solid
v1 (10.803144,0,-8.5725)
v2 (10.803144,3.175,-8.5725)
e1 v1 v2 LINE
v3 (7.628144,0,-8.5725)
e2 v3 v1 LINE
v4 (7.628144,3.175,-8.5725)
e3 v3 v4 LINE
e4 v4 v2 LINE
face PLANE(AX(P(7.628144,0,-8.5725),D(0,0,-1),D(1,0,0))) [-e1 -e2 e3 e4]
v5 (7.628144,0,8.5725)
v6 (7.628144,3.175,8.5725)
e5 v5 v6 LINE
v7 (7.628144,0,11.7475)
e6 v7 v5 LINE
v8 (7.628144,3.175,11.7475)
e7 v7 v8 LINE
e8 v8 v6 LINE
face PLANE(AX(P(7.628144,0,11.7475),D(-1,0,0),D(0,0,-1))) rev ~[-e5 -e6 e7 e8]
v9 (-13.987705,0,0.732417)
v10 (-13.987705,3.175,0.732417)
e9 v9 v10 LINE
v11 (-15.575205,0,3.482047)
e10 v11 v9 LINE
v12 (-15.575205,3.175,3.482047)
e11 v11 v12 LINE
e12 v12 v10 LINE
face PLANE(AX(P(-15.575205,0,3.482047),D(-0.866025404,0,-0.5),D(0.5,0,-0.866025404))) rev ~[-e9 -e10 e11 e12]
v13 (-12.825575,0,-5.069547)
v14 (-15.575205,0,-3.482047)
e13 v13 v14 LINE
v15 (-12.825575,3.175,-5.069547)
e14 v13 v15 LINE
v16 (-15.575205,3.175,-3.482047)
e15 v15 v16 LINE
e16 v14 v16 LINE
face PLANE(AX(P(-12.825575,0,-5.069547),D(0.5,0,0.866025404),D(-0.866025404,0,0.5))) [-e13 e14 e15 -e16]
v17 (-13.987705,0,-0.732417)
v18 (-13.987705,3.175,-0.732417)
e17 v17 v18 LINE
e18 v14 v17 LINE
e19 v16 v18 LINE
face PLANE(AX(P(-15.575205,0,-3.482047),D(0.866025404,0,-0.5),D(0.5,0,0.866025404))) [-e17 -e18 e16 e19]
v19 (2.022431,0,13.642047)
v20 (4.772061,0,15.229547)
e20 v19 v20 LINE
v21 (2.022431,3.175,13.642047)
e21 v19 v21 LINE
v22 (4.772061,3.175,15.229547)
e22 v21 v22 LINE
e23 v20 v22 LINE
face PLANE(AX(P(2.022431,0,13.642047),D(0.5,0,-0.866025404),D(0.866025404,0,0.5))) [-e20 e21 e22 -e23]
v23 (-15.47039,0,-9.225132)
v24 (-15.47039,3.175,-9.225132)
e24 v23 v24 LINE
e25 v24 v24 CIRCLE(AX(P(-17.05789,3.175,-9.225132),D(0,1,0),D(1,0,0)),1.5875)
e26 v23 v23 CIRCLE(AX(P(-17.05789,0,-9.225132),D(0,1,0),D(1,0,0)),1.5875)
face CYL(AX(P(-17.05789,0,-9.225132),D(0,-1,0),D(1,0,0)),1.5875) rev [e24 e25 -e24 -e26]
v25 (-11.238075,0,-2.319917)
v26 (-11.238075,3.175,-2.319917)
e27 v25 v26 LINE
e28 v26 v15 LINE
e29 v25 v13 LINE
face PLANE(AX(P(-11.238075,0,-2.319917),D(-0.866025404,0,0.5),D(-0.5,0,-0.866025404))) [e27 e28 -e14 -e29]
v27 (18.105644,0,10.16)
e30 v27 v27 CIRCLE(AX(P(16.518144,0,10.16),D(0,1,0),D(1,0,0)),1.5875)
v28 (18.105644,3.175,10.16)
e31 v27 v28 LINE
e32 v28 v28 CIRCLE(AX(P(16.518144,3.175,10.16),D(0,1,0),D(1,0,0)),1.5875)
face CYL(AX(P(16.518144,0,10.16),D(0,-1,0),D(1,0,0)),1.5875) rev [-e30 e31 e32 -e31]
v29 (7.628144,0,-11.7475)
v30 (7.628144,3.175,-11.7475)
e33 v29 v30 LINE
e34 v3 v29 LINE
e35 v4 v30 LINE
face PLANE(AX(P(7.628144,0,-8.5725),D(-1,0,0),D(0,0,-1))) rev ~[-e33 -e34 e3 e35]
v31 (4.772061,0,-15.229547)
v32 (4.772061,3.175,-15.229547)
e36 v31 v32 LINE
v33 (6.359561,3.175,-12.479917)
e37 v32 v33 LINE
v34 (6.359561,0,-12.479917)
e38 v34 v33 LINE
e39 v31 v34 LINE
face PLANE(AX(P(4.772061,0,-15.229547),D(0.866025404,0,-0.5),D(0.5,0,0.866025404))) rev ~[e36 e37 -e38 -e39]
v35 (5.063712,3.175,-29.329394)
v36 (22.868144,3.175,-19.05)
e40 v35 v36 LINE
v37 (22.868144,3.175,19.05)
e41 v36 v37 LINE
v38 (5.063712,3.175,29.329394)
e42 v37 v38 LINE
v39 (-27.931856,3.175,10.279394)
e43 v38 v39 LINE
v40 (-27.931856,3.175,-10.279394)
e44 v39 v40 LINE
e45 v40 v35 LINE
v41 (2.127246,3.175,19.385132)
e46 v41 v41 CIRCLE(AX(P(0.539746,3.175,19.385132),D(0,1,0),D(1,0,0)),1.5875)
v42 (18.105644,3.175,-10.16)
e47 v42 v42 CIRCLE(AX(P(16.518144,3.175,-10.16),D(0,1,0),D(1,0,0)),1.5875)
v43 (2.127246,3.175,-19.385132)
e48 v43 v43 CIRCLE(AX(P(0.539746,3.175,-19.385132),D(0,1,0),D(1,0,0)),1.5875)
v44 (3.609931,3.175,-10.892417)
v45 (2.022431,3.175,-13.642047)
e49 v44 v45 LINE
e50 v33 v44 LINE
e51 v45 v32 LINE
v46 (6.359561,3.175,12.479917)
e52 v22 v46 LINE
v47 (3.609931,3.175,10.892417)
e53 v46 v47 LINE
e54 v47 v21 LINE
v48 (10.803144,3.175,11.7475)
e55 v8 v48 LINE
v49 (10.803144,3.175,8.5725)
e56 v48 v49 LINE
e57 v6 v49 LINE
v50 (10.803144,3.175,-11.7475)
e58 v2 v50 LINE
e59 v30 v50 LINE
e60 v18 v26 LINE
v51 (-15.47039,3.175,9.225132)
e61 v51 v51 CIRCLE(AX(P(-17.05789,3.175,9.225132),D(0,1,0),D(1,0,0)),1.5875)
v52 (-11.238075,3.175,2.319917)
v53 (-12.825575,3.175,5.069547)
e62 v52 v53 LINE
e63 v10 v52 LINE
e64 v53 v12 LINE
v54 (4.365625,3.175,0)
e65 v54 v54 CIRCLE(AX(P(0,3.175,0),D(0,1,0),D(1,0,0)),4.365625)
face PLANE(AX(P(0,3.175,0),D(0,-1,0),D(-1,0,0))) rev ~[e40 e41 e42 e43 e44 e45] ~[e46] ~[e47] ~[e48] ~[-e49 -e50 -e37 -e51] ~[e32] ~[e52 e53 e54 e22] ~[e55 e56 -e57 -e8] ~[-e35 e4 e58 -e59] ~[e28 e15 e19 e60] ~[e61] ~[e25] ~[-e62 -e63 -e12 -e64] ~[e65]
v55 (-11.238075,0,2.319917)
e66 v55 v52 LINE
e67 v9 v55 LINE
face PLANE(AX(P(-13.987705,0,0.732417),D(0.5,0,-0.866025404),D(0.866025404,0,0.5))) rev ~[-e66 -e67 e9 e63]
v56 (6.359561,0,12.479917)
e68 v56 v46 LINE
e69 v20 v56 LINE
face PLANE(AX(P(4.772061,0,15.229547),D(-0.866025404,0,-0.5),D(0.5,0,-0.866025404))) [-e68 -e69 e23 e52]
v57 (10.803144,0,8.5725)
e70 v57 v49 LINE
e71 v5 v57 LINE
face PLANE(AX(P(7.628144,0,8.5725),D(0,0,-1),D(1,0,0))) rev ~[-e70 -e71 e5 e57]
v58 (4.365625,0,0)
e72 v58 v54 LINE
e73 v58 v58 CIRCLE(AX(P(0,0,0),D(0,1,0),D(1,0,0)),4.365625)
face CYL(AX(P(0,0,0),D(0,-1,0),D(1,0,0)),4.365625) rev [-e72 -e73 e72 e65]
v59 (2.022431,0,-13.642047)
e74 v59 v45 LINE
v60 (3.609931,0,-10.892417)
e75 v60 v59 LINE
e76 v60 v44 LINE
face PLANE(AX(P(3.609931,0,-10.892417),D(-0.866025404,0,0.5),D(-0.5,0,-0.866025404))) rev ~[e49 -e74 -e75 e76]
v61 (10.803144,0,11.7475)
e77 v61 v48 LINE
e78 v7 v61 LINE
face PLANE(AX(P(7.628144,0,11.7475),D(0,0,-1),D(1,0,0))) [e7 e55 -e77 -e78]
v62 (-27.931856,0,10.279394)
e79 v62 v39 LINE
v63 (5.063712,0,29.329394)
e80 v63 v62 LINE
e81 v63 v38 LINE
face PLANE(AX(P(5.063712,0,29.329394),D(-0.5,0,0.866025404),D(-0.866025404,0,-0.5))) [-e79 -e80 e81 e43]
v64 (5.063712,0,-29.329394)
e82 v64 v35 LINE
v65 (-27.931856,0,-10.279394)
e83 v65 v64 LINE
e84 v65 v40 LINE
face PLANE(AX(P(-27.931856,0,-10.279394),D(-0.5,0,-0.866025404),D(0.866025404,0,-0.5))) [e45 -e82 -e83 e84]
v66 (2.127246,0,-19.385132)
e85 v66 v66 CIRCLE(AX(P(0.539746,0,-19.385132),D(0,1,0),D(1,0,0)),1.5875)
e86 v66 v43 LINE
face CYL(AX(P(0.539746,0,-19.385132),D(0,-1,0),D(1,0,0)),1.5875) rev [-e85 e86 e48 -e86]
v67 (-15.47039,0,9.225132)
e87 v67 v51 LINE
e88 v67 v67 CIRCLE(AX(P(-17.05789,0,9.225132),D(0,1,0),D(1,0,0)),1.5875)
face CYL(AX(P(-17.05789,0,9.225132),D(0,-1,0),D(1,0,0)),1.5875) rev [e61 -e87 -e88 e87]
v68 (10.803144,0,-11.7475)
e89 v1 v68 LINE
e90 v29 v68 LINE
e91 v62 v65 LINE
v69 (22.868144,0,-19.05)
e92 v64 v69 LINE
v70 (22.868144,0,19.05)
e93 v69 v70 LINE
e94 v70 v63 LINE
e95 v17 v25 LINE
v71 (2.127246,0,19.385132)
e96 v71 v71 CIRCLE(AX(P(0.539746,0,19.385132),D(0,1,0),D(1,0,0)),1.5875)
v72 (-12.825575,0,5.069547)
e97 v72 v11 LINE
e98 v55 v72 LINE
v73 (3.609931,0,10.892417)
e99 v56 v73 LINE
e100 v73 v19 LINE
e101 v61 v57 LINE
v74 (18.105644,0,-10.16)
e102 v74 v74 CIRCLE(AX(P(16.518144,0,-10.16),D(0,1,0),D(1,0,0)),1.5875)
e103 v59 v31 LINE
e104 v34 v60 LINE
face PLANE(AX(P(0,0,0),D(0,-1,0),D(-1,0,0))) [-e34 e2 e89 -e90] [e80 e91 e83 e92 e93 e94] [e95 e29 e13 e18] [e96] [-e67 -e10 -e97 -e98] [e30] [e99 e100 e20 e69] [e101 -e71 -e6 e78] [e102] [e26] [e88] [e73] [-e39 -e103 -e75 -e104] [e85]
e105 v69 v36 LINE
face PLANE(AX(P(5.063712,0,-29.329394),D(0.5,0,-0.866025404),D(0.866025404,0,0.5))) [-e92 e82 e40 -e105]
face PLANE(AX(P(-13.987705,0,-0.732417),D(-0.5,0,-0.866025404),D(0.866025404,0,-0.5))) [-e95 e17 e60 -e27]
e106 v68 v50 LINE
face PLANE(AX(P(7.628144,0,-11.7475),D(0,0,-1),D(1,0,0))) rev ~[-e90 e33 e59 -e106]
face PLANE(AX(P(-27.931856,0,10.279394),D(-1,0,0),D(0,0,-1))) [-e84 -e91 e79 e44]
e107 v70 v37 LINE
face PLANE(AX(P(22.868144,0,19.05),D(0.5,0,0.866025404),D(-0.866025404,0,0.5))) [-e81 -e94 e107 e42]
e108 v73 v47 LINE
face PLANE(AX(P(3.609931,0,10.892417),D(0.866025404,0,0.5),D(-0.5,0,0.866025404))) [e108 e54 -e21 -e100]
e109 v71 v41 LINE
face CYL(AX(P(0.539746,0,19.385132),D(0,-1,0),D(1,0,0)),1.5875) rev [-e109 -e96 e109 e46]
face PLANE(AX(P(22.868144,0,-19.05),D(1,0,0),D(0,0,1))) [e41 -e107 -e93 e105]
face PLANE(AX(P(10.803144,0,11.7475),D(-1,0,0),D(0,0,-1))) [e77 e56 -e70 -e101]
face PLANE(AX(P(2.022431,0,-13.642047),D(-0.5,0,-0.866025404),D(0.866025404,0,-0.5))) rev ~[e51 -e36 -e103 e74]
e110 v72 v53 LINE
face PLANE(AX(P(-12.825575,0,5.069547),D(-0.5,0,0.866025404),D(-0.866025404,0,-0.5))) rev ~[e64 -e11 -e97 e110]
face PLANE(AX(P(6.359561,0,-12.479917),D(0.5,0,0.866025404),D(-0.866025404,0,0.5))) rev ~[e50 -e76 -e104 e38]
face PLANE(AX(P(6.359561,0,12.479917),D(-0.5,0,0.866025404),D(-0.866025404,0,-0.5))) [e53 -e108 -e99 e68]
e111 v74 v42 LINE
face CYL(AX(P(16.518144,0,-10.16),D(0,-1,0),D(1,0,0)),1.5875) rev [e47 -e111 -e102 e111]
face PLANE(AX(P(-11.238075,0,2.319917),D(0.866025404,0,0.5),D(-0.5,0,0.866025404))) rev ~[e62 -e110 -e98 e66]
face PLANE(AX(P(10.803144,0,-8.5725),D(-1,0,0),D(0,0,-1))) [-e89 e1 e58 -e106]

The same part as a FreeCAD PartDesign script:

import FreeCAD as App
import Part
import Sketcher

V = App.Vector
Q = App.Units.Quantity


def add_polygon(sketch, points):
    """Adds a closed chain of lines whose ends are joined by coincident constraints."""
    first, n = sketch.GeometryCount, len(points)
    for a, b in zip(points, points[1:] + points[:1]):
        sketch.addGeometry(Part.LineSegment(App.Vector(*a, 0), App.Vector(*b, 0)), False)
    for i in range(n):
        sketch.addConstraint(Sketcher.Constraint("Coincident", first + i, 2, first + (i + 1) % n, 1))

doc = App.newDocument("Part")
body = doc.addObject("PartDesign::Body", "Body")

# Sketch on XZ plane
sketch1 = body.newObject("Sketcher::SketchObject", "Sketch")
sketch1.AttachmentSupport = (doc.getObject("XZ_Plane"), [""])
sketch1.MapMode = "FlatFace"
add_polygon(sketch1, [(22.868144, 19.05), (22.868144, -19.05), (5.063712, -29.329394), (-27.931856, -10.279394), (-27.931856, 10.279394), (5.063712, 29.329394)])  # lines 0-5
sketch1.addGeometry(Part.Circle(V(0.539746, 19.385132, 0), V(0, 0, 1), 1.5875), False)  # 6
add_polygon(sketch1, [(3.609931, 10.892417), (6.359561, 12.479917), (4.772061, 15.229547), (2.022431, 13.642047)])  # lines 7-10
sketch1.addGeometry(Part.Circle(V(16.518144, 10.16, 0), V(0, 0, 1), 1.5875), False)  # 11
add_polygon(sketch1, [(7.628144, 11.7475), (7.628144, 8.5725), (10.803144, 8.5725), (10.803144, 11.7475)])  # lines 12-15
sketch1.addGeometry(Part.Circle(V(-17.05789, 9.225132, 0), V(0, 0, 1), 1.5875), False)  # 16
add_polygon(sketch1, [(-11.238075, 2.319917), (-12.825575, 5.069547), (-15.575205, 3.482047), (-13.987705, 0.732417)])  # lines 17-20
sketch1.addGeometry(Part.Circle(V(16.518144, -10.16, 0), V(0, 0, 1), 1.5875), False)  # 21
add_polygon(sketch1, [(7.628144, -8.5725), (7.628144, -11.7475), (10.803144, -11.7475), (10.803144, -8.5725)])  # lines 22-25
sketch1.addGeometry(Part.Circle(V(0, 0, 0), V(0, 0, 1), 4.365625), False)  # 26
add_polygon(sketch1, [(3.609931, -10.892417), (2.022431, -13.642047), (4.772061, -15.229547), (6.359561, -12.479917)])  # lines 27-30
sketch1.addGeometry(Part.Circle(V(0.539746, -19.385132, 0), V(0, 0, 1), 1.5875), False)  # 31
add_polygon(sketch1, [(-11.238075, -2.319917), (-13.987705, -0.732417), (-15.575205, -3.482047), (-12.825575, -5.069547)])  # lines 32-35
sketch1.addGeometry(Part.Circle(V(-17.05789, -9.225132, 0), V(0, 0, 1), 1.5875), False)  # 36
sketch1.addConstraint([
    Sketcher.Constraint("Vertical", 0),
    Sketcher.Constraint("Vertical", 3),
    Sketcher.Constraint("Vertical", 12),
    Sketcher.Constraint("Horizontal", 13),
    Sketcher.Constraint("Vertical", 14),
    Sketcher.Constraint("Horizontal", 15),
    Sketcher.Constraint("Vertical", 22),
    Sketcher.Constraint("Horizontal", 23),
    Sketcher.Constraint("Vertical", 24),
    Sketcher.Constraint("Horizontal", 25),
    Sketcher.Constraint("Coincident", 26, 3, -1, 1),
    Sketcher.Constraint("Equal", 6, 11),
    Sketcher.Constraint("Equal", 11, 16),
    Sketcher.Constraint("Equal", 16, 21),
    Sketcher.Constraint("Equal", 21, 31),
    Sketcher.Constraint("Equal", 31, 36),
    Sketcher.Constraint("Symmetric", 11, 3, 21, 3, -1),
    Sketcher.Constraint("Symmetric", 6, 3, 31, 3, -1),
    Sketcher.Constraint("Symmetric", 16, 3, 36, 3, -1),
    Sketcher.Constraint("Symmetric", 1, 2, 4, 2, -1),
    Sketcher.Constraint("Symmetric", 15, 2, 22, 2, -1),
    Sketcher.Constraint("Symmetric", 13, 2, 24, 2, -1),
    Sketcher.Constraint("Symmetric", 9, 2, 27, 2, -1),
    Sketcher.Constraint("Symmetric", 8, 2, 28, 2, -1),
    Sketcher.Constraint("Symmetric", 7, 2, 29, 2, -1),
    Sketcher.Constraint("Symmetric", 10, 2, 30, 2, -1),
    Sketcher.Constraint("Symmetric", 19, 2, 32, 2, -1),
    Sketcher.Constraint("Symmetric", 18, 2, 33, 2, -1),
    Sketcher.Constraint("Symmetric", 17, 2, 34, 2, -1),
    Sketcher.Constraint("Symmetric", 20, 2, 35, 2, -1),
    Sketcher.Constraint("Parallel", 1, 4),
    Sketcher.Constraint("Parallel", 2, 5),
    Sketcher.Constraint("Parallel", 4, 7),
    Sketcher.Constraint("Perpendicular", 7, 8),
    Sketcher.Constraint("Perpendicular", 8, 9),
    Sketcher.Constraint("Perpendicular", 9, 10),
    Sketcher.Constraint("Parallel", 10, 17),
    Sketcher.Constraint("Perpendicular", 17, 18),
    Sketcher.Constraint("Perpendicular", 18, 19),
    Sketcher.Constraint("Perpendicular", 19, 20),
    Sketcher.Constraint("Perpendicular", 5, 27),
    Sketcher.Constraint("Equal", 25, 12),
    Sketcher.Constraint("Equal", 7, 8),
    Sketcher.Constraint("Equal", 10, 17),
    Sketcher.Constraint("Equal", 17, 18),
    Sketcher.Constraint("Diameter", 6, Q("0.125 in")),
    Sketcher.Constraint("Diameter", 26, Q("0.34375 in")),
    Sketcher.Constraint("DistanceY", 0, 2, 0, 1, Q("1.5 in")),
    Sketcher.Constraint("Angle", 1, Q("-150 deg")),
    Sketcher.Constraint("Distance", 2, Q("1.5 in")),
    Sketcher.Constraint("DistanceY", -1, 1, 11, 3, Q("0.4 in")),
    Sketcher.Constraint("DistanceY", 16, 3, 6, 3, Q("0.4 in")),
    Sketcher.Constraint("DistanceX", 22, 2, 0, 2, Q("0.6 in")),
    Sketcher.Constraint("DistanceX", 13, 1, 13, 2, Q("0.125 in")),
    Sketcher.Constraint("DistanceX", 21, 3, 0, 2, Q("0.25 in")),
    Sketcher.Constraint("Distance", 7, Q("0.125 in")),
    Sketcher.Constraint("DistanceY", 12, 2, 11, 3, Q("0.0625 in")),
    Sketcher.Constraint("DistanceY", 17, 2, 9, 2, Q("0.3375 in")),
    Sketcher.Constraint("DistanceY", 3, 1, 3, 2, 20.558787),
    Sketcher.Constraint("DistanceX", 16, 3, -1, 1, 17.05789),
    Sketcher.Constraint("DistanceX", -1, 1, 1, 2, 5.063712),
    Sketcher.Constraint("DistanceX", -1, 1, 7, 2, 6.359561),
    Sketcher.Constraint("DistanceY", 1, 2, 31, 3, 9.944261),
    Sketcher.Constraint("DistanceY", 36, 3, 17, 2, 14.29468),
    Sketcher.Constraint("DistanceX", 3, 2, 17, 2, 15.106281),
    Sketcher.Constraint("DistanceX", -1, 1, 6, 3, 0.539746),
])
pad1 = body.newObject("PartDesign::Pad", "Pad")
pad1.Profile = sketch1
pad1.Length = Q("0.125 in")
pad1.Reversed = True

doc.recompute()
